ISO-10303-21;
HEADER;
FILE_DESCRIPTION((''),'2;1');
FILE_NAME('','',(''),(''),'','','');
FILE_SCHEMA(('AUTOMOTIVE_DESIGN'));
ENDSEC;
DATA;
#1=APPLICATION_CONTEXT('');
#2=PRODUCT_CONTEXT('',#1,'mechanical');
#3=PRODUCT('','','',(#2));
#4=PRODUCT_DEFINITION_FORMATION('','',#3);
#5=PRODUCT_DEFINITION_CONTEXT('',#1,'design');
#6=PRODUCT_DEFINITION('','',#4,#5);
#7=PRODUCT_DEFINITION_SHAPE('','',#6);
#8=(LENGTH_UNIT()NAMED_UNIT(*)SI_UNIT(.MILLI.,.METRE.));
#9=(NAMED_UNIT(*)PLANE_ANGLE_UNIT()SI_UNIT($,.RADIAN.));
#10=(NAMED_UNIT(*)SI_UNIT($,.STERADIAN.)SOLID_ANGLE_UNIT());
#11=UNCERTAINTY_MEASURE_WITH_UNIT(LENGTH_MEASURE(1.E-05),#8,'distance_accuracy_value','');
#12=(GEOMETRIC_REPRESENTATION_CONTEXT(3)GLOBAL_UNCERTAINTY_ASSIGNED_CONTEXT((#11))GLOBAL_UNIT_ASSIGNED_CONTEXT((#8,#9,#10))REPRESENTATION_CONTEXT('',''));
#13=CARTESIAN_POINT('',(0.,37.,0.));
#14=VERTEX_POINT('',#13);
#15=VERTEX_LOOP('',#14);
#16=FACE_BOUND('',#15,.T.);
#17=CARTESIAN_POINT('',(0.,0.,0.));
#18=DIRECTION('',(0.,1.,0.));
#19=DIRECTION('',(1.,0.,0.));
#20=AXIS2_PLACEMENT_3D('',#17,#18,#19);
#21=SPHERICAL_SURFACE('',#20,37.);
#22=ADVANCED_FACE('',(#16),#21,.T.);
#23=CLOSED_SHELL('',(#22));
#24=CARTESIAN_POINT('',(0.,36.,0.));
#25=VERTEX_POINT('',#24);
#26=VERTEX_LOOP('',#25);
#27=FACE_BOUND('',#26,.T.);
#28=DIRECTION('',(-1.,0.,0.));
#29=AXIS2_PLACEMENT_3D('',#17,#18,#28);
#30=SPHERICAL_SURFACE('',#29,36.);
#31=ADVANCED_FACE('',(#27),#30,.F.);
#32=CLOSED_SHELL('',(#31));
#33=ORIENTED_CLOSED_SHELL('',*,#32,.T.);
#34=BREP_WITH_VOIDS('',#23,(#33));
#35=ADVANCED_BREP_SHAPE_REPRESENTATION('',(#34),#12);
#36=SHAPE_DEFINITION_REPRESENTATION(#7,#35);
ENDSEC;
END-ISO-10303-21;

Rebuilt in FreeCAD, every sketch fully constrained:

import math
import FreeCAD as App
import Part
import Sketcher

V = App.Vector
Q = App.Units.Quantity

doc = App.newDocument("Part")
params = doc.addObject("Spreadsheet::Sheet", "Params")
for row, (alias, value) in enumerate([
    ("sketch1_radius", "36 mm"),
    ("sketch1_radius2", "37 mm"),
    ("revolution_angle", "360 deg"),
], start=1):
    params.set(f"A{row}", alias)
    params.set(f"B{row}", "=" + value)
    params.setAlias(f"B{row}", alias)

body = doc.addObject("PartDesign::Body", "Body")

# Sketch on XY plane
sketch1 = doc.addObject("Sketcher::SketchObject", "Sketch")
body.addObject(sketch1)
sketch1.AttachmentSupport = (doc.XY_Plane, [""])
sketch1.MapMode = "FlatFace"
sketch1.addGeometry(Part.LineSegment(V(0, 37, 0), V(0, 36, 0)), False)
sketch1.addGeometry(Part.ArcOfCircle(Part.Circle(V(0, 0, 0), V(0, 0, 1), 36), math.radians(-90), math.radians(90)), False)
sketch1.addGeometry(Part.LineSegment(V(0, -36, 0), V(0, -37, 0)), False)
sketch1.addGeometry(Part.ArcOfCircle(Part.Circle(V(0, 0, 0), V(0, 0, 1), 37), math.radians(-90), math.radians(90)), False)
sketch1.addConstraint(Sketcher.Constraint("Coincident", 0, 2, 1, 2))
sketch1.addConstraint(Sketcher.Constraint("Coincident", 1, 1, 2, 1))
sketch1.addConstraint(Sketcher.Constraint("Coincident", 2, 2, 3, 1))
sketch1.addConstraint(Sketcher.Constraint("Coincident", 3, 2, 0, 1))
sketch1.addConstraint(Sketcher.Constraint("Vertical", 0))
sketch1.addConstraint(Sketcher.Constraint("Vertical", 2))
sketch1.addConstraint(Sketcher.Constraint("Coincident", 1, 3, -1, 1))
sketch1.addConstraint(Sketcher.Constraint("Coincident", 3, 3, -1, 1))
sketch1.addConstraint(Sketcher.Constraint("PointOnObject", 0, 2, -2))
sketch1.addConstraint(Sketcher.Constraint("PointOnObject", 1, 1, -2))
sketch1.addConstraint(Sketcher.Constraint("Radius", 1, Q("36 mm")))
sketch1.addConstraint(Sketcher.Constraint("Radius", 3, Q("37 mm")))
sketch1.setExpression("Constraints[10]", "Params.sketch1_radius")
sketch1.setExpression("Constraints[11]", "Params.sketch1_radius2")
revolution = doc.addObject("PartDesign::Revolution", "Revolution")
body.addObject(revolution)
revolution.Profile = sketch1
revolution.ReferenceAxis = (sketch1, ["V_Axis"])
revolution.setExpression("Angle", "Params.revolution_angle")

doc.recompute()
